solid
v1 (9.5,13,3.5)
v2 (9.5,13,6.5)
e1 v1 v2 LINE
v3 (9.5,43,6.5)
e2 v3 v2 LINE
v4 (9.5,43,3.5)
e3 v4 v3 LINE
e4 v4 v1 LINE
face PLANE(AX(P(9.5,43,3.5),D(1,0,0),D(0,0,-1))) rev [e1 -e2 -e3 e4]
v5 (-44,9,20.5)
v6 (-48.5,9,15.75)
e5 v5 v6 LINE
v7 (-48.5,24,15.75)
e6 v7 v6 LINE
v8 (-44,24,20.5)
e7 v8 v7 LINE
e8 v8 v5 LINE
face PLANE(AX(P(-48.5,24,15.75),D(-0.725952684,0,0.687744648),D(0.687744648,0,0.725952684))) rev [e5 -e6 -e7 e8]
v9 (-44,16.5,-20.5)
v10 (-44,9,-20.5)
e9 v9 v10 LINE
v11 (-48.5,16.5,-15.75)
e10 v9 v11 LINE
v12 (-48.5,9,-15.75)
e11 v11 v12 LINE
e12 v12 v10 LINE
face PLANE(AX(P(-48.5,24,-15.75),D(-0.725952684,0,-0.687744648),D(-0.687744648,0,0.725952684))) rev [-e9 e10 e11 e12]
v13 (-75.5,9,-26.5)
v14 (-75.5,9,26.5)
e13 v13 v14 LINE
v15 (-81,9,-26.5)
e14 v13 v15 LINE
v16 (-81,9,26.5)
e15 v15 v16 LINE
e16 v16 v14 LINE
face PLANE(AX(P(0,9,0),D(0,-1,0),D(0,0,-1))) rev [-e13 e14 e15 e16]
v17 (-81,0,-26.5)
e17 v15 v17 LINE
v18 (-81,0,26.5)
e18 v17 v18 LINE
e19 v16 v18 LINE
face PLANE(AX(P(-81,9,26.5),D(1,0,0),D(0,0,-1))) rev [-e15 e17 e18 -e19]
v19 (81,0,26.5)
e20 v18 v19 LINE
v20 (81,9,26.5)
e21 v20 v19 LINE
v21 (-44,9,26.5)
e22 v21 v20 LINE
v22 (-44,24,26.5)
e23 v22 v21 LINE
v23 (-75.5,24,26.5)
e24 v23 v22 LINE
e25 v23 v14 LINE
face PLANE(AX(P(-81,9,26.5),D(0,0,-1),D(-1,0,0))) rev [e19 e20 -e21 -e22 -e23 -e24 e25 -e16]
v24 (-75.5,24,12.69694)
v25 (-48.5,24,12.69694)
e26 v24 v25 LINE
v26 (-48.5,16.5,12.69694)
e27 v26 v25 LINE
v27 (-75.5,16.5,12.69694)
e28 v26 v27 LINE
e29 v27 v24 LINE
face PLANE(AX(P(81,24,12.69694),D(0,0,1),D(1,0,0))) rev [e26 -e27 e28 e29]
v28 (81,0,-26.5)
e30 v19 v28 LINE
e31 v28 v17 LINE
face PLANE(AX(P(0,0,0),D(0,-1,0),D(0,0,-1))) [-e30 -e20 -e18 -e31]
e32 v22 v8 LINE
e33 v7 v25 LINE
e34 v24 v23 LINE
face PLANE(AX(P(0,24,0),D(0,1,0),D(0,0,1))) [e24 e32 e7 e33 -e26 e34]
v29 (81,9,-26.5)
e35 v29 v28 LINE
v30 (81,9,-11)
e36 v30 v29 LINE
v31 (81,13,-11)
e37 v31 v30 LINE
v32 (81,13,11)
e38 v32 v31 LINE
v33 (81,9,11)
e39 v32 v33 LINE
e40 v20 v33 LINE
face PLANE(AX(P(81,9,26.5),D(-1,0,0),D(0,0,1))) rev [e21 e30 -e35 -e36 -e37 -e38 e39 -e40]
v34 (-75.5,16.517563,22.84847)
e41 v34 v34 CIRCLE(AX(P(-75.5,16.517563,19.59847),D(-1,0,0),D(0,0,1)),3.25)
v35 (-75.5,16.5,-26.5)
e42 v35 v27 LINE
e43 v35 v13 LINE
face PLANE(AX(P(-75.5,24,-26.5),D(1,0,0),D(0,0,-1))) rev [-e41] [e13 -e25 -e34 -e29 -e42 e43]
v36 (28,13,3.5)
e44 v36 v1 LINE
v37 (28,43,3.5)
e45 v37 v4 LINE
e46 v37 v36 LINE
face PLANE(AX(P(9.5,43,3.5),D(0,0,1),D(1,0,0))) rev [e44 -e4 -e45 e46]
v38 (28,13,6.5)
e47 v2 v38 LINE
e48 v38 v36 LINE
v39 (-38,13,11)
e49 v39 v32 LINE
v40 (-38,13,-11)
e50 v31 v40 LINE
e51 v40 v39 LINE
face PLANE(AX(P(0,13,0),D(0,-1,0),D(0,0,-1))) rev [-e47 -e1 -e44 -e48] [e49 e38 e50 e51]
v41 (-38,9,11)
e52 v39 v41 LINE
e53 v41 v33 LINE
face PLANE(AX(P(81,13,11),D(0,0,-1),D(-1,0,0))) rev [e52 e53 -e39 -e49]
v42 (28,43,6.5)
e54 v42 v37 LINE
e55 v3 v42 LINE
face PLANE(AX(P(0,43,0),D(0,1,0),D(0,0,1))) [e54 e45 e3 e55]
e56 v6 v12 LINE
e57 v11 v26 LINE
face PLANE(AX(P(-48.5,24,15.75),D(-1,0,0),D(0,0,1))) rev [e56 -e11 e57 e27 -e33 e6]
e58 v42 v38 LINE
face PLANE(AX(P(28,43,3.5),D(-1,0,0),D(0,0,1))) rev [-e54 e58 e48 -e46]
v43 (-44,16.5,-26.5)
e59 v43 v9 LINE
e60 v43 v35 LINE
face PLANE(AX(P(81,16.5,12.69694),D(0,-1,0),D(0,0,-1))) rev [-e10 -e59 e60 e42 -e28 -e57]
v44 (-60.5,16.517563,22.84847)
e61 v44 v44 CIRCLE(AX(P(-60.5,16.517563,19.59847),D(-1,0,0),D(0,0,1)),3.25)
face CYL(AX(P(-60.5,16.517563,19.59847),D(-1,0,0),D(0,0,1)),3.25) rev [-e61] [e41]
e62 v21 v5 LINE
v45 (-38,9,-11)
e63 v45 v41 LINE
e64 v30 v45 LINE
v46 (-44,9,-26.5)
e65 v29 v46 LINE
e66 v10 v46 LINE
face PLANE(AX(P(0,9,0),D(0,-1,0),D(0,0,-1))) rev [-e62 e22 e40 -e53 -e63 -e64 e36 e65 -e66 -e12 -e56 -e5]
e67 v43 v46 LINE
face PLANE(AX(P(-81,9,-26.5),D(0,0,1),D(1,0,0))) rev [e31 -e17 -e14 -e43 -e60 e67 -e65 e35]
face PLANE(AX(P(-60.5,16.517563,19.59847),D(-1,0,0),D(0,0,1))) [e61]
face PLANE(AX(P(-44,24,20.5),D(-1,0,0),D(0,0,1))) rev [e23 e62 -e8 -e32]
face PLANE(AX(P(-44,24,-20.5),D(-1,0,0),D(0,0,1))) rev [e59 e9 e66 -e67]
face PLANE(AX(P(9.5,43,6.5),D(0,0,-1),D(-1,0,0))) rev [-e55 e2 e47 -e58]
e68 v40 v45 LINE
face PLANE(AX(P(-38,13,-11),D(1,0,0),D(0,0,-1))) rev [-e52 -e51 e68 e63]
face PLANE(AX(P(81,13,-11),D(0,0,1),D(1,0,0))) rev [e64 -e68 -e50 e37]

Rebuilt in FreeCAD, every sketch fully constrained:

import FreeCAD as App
import Part
import Sketcher

doc = App.newDocument("Part")
body = doc.addObject("PartDesign::Body", "Body")

sketch1 = body.newObject("Sketcher::SketchObject", "Sketch")
sketch1.AttachmentSupport = (doc.getObject("XZ_Plane"), [""])
sketch1.MapMode = "FlatFace"
sketch1.addGeometry([
    Part.LineSegment(App.Vector(-81, -26, 0), App.Vector(-81, 26, 0)),
    Part.LineSegment(App.Vector(-81, 26, 0), App.Vector(81, 26, 0)),
    Part.LineSegment(App.Vector(81, 26, 0), App.Vector(81, -26, 0)),
    Part.LineSegment(App.Vector(81, -26, 0), App.Vector(-81, -26, 0)),
], False)
sketch1.addConstraint([
    Sketcher.Constraint("Coincident", 0, 2, 1, 1),
    Sketcher.Constraint("Coincident", 1, 2, 2, 1),
    Sketcher.Constraint("Coincident", 2, 2, 3, 1),
    Sketcher.Constraint("Coincident", 3, 2, 0, 1),
    Sketcher.Constraint("Vertical", 0),
    Sketcher.Constraint("Horizontal", 1),
    Sketcher.Constraint("Vertical", 2),
    Sketcher.Constraint("Horizontal", 3),
    Sketcher.Constraint("Symmetric", 0, 2, 2, 2, -1, 1),
    Sketcher.Constraint("DistanceX", 1, 1, 1, 2, 162.0),
    Sketcher.Constraint("DistanceY", 0, 1, 0, 2, 53.0),
])
pad1 = body.newObject("PartDesign::Pad", "Pad")
pad1.Profile = sketch1
pad1.Length = 9
pad1.Reversed = True

sketch2 = body.newObject("Sketcher::SketchObject", "Sketch001")
sketch2.AttachmentSupport = (doc.getObject("XZ_Plane"), [""])
sketch2.MapMode = "FlatFace"
sketch2.AttachmentOffset = App.Placement(App.Vector(0, 0, -9), App.Rotation())
sketch2.addGeometry([
    Part.LineSegment(App.Vector(-76, -26, 0), App.Vector(-76, 26, 0)),
    Part.LineSegment(App.Vector(-76, 26, 0), App.Vector(-44, 26, 0)),
    Part.LineSegment(App.Vector(-44, 26, 0), App.Vector(-44, 20, 0)),
    Part.LineSegment(App.Vector(-44, 20, 0), App.Vector(-48, 16, 0)),
    Part.LineSegment(App.Vector(-48, 16, 0), App.Vector(-48, -16, 0)),
    Part.LineSegment(App.Vector(-48, -16, 0), App.Vector(-44, -20, 0)),
    Part.LineSegment(App.Vector(-44, -20, 0), App.Vector(-44, -26, 0)),
    Part.LineSegment(App.Vector(-44, -26, 0), App.Vector(-76, -26, 0)),
], False)
sketch2.addConstraint([
    Sketcher.Constraint("Coincident", 0, 2, 1, 1),
    Sketcher.Constraint("Coincident", 1, 2, 2, 1),
    Sketcher.Constraint("Coincident", 2, 2, 3, 1),
    Sketcher.Constraint("Coincident", 3, 2, 4, 1),
    Sketcher.Constraint("Coincident", 4, 2, 5, 1),
    Sketcher.Constraint("Coincident", 5, 2, 6, 1),
    Sketcher.Constraint("Coincident", 6, 2, 7, 1),
    Sketcher.Constraint("Coincident", 7, 2, 0, 1),
    Sketcher.Constraint("Vertical", 0),
    Sketcher.Constraint("Horizontal", 1),
    Sketcher.Constraint("Vertical", 2),
    Sketcher.Constraint("Vertical", 4),
    Sketcher.Constraint("Vertical", 6),
    Sketcher.Constraint("Horizontal", 7),
    Sketcher.Constraint("Symmetric", 2, 2, 5, 2, -1),
    Sketcher.Constraint("Equal", 7, 4),
    Sketcher.Constraint("Equal", 2, 6),
    Sketcher.Constraint("Equal", 3, 5),
    Sketcher.Constraint("DistanceY", 0, 1, 0, 2, 53.0),
    Sketcher.Constraint("DistanceY", 2, 2, 2, 1, 6.0),
    Sketcher.Constraint("DistanceX", 1, 1, 1, 2, 31.5),
    Sketcher.Constraint("DistanceX", 1, 2, -1, 1, 44.0),
    Sketcher.Constraint("DistanceX", 0, 2, 3, 2, 27.0),
])
pad2 = body.newObject("PartDesign::Pad", "Pad001")
pad2.Profile = sketch2
pad2.Length = 15
pad2.Reversed = True

sketch3 = body.newObject("Sketcher::SketchObject", "Sketch002")
sketch3.AttachmentSupport = (doc.getObject("YZ_Plane"), [""])
sketch3.MapMode = "FlatFace"
sketch3.AttachmentOffset = App.Placement(App.Vector(0, 0, -75.5), App.Rotation())
sketch3.addGeometry([
    Part.LineSegment(App.Vector(24, -27, 0), App.Vector(16, -27, 0)),
    Part.LineSegment(App.Vector(16, -27, 0), App.Vector(16, 13, 0)),
    Part.LineSegment(App.Vector(16, 13, 0), App.Vector(24, 13, 0)),
    Part.LineSegment(App.Vector(24, 13, 0), App.Vector(24, -27, 0)),
], False)
sketch3.addConstraint([
    Sketcher.Constraint("Coincident", 0, 2, 1, 1),
    Sketcher.Constraint("Coincident", 1, 2, 2, 1),
    Sketcher.Constraint("Coincident", 2, 2, 3, 1),
    Sketcher.Constraint("Coincident", 3, 2, 0, 1),
    Sketcher.Constraint("Horizontal", 0),
    Sketcher.Constraint("Vertical", 1),
    Sketcher.Constraint("Horizontal", 2),
    Sketcher.Constraint("Vertical", 3),
    Sketcher.Constraint("DistanceX", 0, 2, 0, 1, 7.5),
    Sketcher.Constraint("DistanceX", -1, 1, 2, 2, 24.0),
    Sketcher.Constraint("DistanceY", 0, 2, -1, 1, 26.5),
    Sketcher.Constraint("DistanceY", 1, 1, 1, 2, 39.19694),
])
pocket1 = body.newObject("PartDesign::Pocket", "Pocket")
pocket1.Profile = sketch3
pocket1.Type = "ThroughAll"
pocket1.Reversed = True

sketch4 = body.newObject("Sketcher::SketchObject", "Sketch003")
sketch4.AttachmentSupport = (doc.getObject("YZ_Plane"), [""])
sketch4.MapMode = "FlatFace"
sketch4.AttachmentOffset = App.Placement(App.Vector(0, 0, -75.5), App.Rotation())
sketch4.addGeometry(Part.Circle(App.Vector(16.5, 19.6, 0), App.Vector(0, 0, 1), 3.2), False)
sketch4.addConstraint([
    Sketcher.Constraint("Diameter", 0, 6.5),
    Sketcher.Constraint("DistanceY", -1, 1, 0, 3, 19.59847),
    Sketcher.Constraint("DistanceX", -1, 1, 0, 3, 16.517563),
])
pocket2 = body.newObject("PartDesign::Pocket", "Pocket001")
pocket2.Profile = sketch4
pocket2.Length = 15
pocket2.Reversed = True

sketch5 = body.newObject("Sketcher::SketchObject", "Sketch004")
sketch5.AttachmentSupport = (doc.getObject("XZ_Plane"), [""])
sketch5.MapMode = "FlatFace"
sketch5.AttachmentOffset = App.Placement(App.Vector(0, 0, -9), App.Rotation())
sketch5.addGeometry([
    Part.LineSegment(App.Vector(-38, -11, 0), App.Vector(-38, 11, 0)),
    Part.LineSegment(App.Vector(-38, 11, 0), App.Vector(81, 11, 0)),
    Part.LineSegment(App.Vector(81, 11, 0), App.Vector(81, -11, 0)),
    Part.LineSegment(App.Vector(81, -11, 0), App.Vector(-38, -11, 0)),
], False)
sketch5.addConstraint([
    Sketcher.Constraint("Coincident", 0, 2, 1, 1),
    Sketcher.Constraint("Coincident", 1, 2, 2, 1),
    Sketcher.Constraint("Coincident", 2, 2, 3, 1),
    Sketcher.Constraint("Coincident", 3, 2, 0, 1),
    Sketcher.Constraint("Vertical", 0),
    Sketcher.Constraint("Horizontal", 1),
    Sketcher.Constraint("Vertical", 2),
    Sketcher.Constraint("Horizontal", 3),
    Sketcher.Constraint("DistanceX", 1, 1, 1, 2, 119.0),
    Sketcher.Constraint("DistanceY", 0, 1, 0, 2, 22.0),
    Sketcher.Constraint("DistanceX", 0, 2, -1, 1, 38.0),
    Sketcher.Constraint("DistanceY", -1, 1, 0, 2, 11.0),
])
pad3 = body.newObject("PartDesign::Pad", "Pad002")
pad3.Profile = sketch5
pad3.Length = 4
pad3.Reversed = True

sketch6 = body.newObject("Sketcher::SketchObject", "Sketch005")
sketch6.AttachmentSupport = (doc.getObject("XZ_Plane"), [""])
sketch6.MapMode = "FlatFace"
sketch6.AttachmentOffset = App.Placement(App.Vector(0, 0, -13), App.Rotation())
sketch6.addGeometry([
    Part.LineSegment(App.Vector(9.5, 3.5, 0), App.Vector(9.5, 6.5, 0)),
    Part.LineSegment(App.Vector(9.5, 6.5, 0), App.Vector(28, 6.5, 0)),
    Part.LineSegment(App.Vector(28, 6.5, 0), App.Vector(28, 3.5, 0)),
    Part.LineSegment(App.Vector(28, 3.5, 0), App.Vector(9.5, 3.5, 0)),
], False)
sketch6.addConstraint([
    Sketcher.Constraint("Coincident", 0, 2, 1, 1),
    Sketcher.Constraint("Coincident", 1, 2, 2, 1),
    Sketcher.Constraint("Coincident", 2, 2, 3, 1),
    Sketcher.Constraint("Coincident", 3, 2, 0, 1),
    Sketcher.Constraint("Vertical", 0),
    Sketcher.Constraint("Horizontal", 1),
    Sketcher.Constraint("Vertical", 2),
    Sketcher.Constraint("Horizontal", 3),
    Sketcher.Constraint("DistanceY", 0, 1, 0, 2, 3.0),
    Sketcher.Constraint("DistanceX", 1, 1, 1, 2, 18.5),
    Sketcher.Constraint("DistanceX", -1, 1, 1, 2, 28.0),
    Sketcher.Constraint("DistanceY", -1, 1, 0, 2, 6.5),
])
pad4 = body.newObject("PartDesign::Pad", "Pad003")
pad4.Profile = sketch6
pad4.Length = 30
pad4.Reversed = True

doc.recompute()
